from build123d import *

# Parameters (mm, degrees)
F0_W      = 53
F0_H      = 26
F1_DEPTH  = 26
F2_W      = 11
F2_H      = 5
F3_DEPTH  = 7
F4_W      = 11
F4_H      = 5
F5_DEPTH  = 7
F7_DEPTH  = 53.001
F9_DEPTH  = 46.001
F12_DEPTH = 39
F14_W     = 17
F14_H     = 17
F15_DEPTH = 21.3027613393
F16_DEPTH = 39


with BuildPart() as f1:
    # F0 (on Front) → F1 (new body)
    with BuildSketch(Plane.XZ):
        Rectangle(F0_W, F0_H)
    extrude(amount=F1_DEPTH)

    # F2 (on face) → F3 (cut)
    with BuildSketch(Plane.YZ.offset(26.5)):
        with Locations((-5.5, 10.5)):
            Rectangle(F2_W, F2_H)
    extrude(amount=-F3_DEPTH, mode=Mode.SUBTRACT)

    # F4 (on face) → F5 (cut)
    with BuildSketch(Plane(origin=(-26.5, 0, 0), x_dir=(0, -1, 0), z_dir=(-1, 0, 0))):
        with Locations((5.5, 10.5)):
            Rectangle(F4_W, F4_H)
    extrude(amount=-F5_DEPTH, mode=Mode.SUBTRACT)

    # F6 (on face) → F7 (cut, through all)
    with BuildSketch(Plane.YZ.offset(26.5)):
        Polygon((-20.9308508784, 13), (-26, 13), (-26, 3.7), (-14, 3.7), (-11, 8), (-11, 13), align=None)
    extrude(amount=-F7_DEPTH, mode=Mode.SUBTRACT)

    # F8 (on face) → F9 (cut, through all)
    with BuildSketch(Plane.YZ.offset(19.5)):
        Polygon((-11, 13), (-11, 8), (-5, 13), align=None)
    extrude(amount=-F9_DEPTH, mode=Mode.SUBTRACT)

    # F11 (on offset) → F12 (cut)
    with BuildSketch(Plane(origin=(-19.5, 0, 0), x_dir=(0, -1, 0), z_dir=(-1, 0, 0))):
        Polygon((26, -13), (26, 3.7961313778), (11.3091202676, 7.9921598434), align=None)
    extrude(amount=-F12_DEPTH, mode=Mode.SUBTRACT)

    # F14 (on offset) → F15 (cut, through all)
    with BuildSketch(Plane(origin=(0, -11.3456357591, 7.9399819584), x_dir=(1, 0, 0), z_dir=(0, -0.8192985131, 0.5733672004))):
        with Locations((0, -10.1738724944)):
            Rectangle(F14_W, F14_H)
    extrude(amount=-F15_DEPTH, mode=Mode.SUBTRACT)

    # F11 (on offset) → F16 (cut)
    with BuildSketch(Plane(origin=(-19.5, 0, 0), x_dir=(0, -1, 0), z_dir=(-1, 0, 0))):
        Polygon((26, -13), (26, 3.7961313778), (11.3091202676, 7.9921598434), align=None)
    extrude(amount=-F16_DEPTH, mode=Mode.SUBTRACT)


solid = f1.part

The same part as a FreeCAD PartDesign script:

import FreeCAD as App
import Part
import Sketcher


def add_polygon(sketch, points):
    """Adds a closed chain of lines whose ends are joined by coincident constraints."""
    first, n = sketch.GeometryCount, len(points)
    for a, b in zip(points, points[1:] + points[:1]):
        sketch.addGeometry(Part.LineSegment(App.Vector(*a, 0), App.Vector(*b, 0)), False)
    for i in range(n):
        sketch.addConstraint(Sketcher.Constraint("Coincident", first + i, 2, first + (i + 1) % n, 1))

doc = App.newDocument("Part")
body = doc.addObject("PartDesign::Body", "Body")

# Sketch on XZ plane
sketch1 = body.newObject("Sketcher::SketchObject", "Sketch")
sketch1.AttachmentSupport = (doc.getObject("XZ_Plane"), [""])
sketch1.MapMode = "FlatFace"
add_polygon(sketch1, [(-26, 13), (-26, -13), (26, -13), (26, 13)])  # lines 0-3
sketch1.addConstraint(Sketcher.Constraint("Vertical", 0))
sketch1.addConstraint(Sketcher.Constraint("Horizontal", 1))
sketch1.addConstraint(Sketcher.Constraint("Vertical", 2))
sketch1.addConstraint(Sketcher.Constraint("Horizontal", 3))
sketch1.addConstraint(Sketcher.Constraint("Symmetric", 0, 2, 2, 2, -1, 1))
sketch1.addConstraint(Sketcher.Constraint("DistanceX", 1, 1, 1, 2, 53.0))
sketch1.addConstraint(Sketcher.Constraint("DistanceY", 0, 2, 0, 1, 26.0))
pad1 = body.newObject("PartDesign::Pad", "Pad")
pad1.Profile = sketch1
pad1.Length = 26

# Sketch on YZ plane
sketch2 = body.newObject("Sketcher::SketchObject", "Sketch001")
sketch2.AttachmentSupport = (doc.getObject("YZ_Plane"), [""])
sketch2.MapMode = "FlatFace"
sketch2.AttachmentOffset = App.Placement(App.Vector(0, 0, 26.5), App.Rotation())
add_polygon(sketch2, [(-11, 13), (-11, 8), (0, 8), (0, 13)])  # lines 0-3
sketch2.addConstraint(Sketcher.Constraint("Vertical", 0))
sketch2.addConstraint(Sketcher.Constraint("Horizontal", 1))
sketch2.addConstraint(Sketcher.Constraint("Vertical", 2))
sketch2.addConstraint(Sketcher.Constraint("Horizontal", 3))
sketch2.addConstraint(Sketcher.Constraint("PointOnObject", 1, 2, -2))
sketch2.addConstraint(Sketcher.Constraint("DistanceX", 1, 1, 1, 2, 11.0))
sketch2.addConstraint(Sketcher.Constraint("DistanceY", 0, 2, 0, 1, 5.0))
sketch2.addConstraint(Sketcher.Constraint("DistanceY", -1, 1, 0, 2, 8.0))
pocket1 = body.newObject("PartDesign::Pocket", "Pocket")
pocket1.Profile = sketch2
pocket1.Length = 7

# Sketch on YZ plane
sketch3 = body.newObject("Sketcher::SketchObject", "Sketch002")
sketch3.AttachmentSupport = (doc.getObject("YZ_Plane"), [""])
sketch3.MapMode = "FlatFace"
sketch3.AttachmentOffset = App.Placement(App.Vector(0, 0, -26.5), App.Rotation())
add_polygon(sketch3, [(0, 13), (0, 8), (-11, 8), (-11, 13)])  # lines 0-3
sketch3.addConstraint(Sketcher.Constraint("Vertical", 0))
sketch3.addConstraint(Sketcher.Constraint("Horizontal", 1))
sketch3.addConstraint(Sketcher.Constraint("Vertical", 2))
sketch3.addConstraint(Sketcher.Constraint("Horizontal", 3))
sketch3.addConstraint(Sketcher.Constraint("PointOnObject", 0, 2, -2))
sketch3.addConstraint(Sketcher.Constraint("DistanceX", 1, 2, 1, 1, 11.0))
sketch3.addConstraint(Sketcher.Constraint("DistanceY", 0, 2, 0, 1, 5.0))
sketch3.addConstraint(Sketcher.Constraint("DistanceY", -1, 1, 0, 2, 8.0))
pocket2 = body.newObject("PartDesign::Pocket", "Pocket001")
pocket2.Profile = sketch3
pocket2.Length = 7
pocket2.Reversed = True

# Sketch on YZ plane
sketch4 = body.newObject("Sketcher::SketchObject", "Sketch003")
sketch4.AttachmentSupport = (doc.getObject("YZ_Plane"), [""])
sketch4.MapMode = "FlatFace"
sketch4.AttachmentOffset = App.Placement(App.Vector(0, 0, 26.5), App.Rotation())
add_polygon(sketch4, [(-26, 13), (-26, 4), (-14, 4), (-11, 8), (-11, 13)])  # lines 0-4
sketch4.addConstraint(Sketcher.Constraint("Vertical", 0))
sketch4.addConstraint(Sketcher.Constraint("Horizontal", 1))
sketch4.addConstraint(Sketcher.Constraint("Vertical", 3))
sketch4.addConstraint(Sketcher.Constraint("Horizontal", 4))
sketch4.addConstraint(Sketcher.Constraint("DistanceX", 1, 1, 1, 2, 12.0))
sketch4.addConstraint(Sketcher.Constraint("DistanceX", 4, 2, 4, 1, 15.0))
sketch4.addConstraint(Sketcher.Constraint("DistanceY", 3, 1, 3, 2, 5.0))
sketch4.addConstraint(Sketcher.Constraint("DistanceY", 0, 2, 0, 1, 9.3))
sketch4.addConstraint(Sketcher.Constraint("DistanceX", 0, 2, -1, 1, 26.0))
sketch4.addConstraint(Sketcher.Constraint("DistanceY", -1, 1, 2, 2, 8.0))
pocket3 = body.newObject("PartDesign::Pocket", "Pocket002")
pocket3.Profile = sketch4
pocket3.Type = "ThroughAll"

# Sketch on YZ plane
sketch5 = body.newObject("Sketcher::SketchObject", "Sketch004")
sketch5.AttachmentSupport = (doc.getObject("YZ_Plane"), [""])
sketch5.MapMode = "FlatFace"
sketch5.AttachmentOffset = App.Placement(App.Vector(0, 0, 19.5), App.Rotation())
add_polygon(sketch5, [(-11, 13), (-11, 8), (-5, 13)])  # lines 0-2
sketch5.addConstraint(Sketcher.Constraint("Vertical", 0))
sketch5.addConstraint(Sketcher.Constraint("Horizontal", 2))
sketch5.addConstraint(Sketcher.Constraint("DistanceX", 2, 2, 2, 1, 6.0))
sketch5.addConstraint(Sketcher.Constraint("DistanceY", 0, 2, 0, 1, 5.0))
sketch5.addConstraint(Sketcher.Constraint("DistanceX", 0, 2, -1, 1, 11.0))
sketch5.addConstraint(Sketcher.Constraint("DistanceY", -1, 1, 0, 2, 8.0))
pocket4 = body.newObject("PartDesign::Pocket", "Pocket003")
pocket4.Profile = sketch5
pocket4.Type = "ThroughAll"

# Sketch on YZ plane
sketch6 = body.newObject("Sketcher::SketchObject", "Sketch005")
sketch6.AttachmentSupport = (doc.getObject("YZ_Plane"), [""])
sketch6.MapMode = "FlatFace"
sketch6.AttachmentOffset = App.Placement(App.Vector(0, 0, -19.5), App.Rotation())
add_polygon(sketch6, [(-26, -13), (-26, 4), (-11, 8)])  # lines 0-2
sketch6.addConstraint(Sketcher.Constraint("Vertical", 0))
sketch6.addConstraint(Sketcher.Constraint("DistanceX", 0, 2, -1, 1, 26.0))
sketch6.addConstraint(Sketcher.Constraint("DistanceY", 2, 2, -1, 1, 13.0))
sketch6.addConstraint(Sketcher.Constraint("DistanceY", 0, 1, 0, 2, 16.796131))
sketch6.addConstraint(Sketcher.Constraint("Distance", 1, 15.27837))
sketch6.addConstraint(Sketcher.Constraint("DistanceX", 1, 2, -1, 1, 11.30912))
pocket5 = body.newObject("PartDesign::Pocket", "Pocket004")
pocket5.Profile = sketch6
pocket5.Length = 39
pocket5.Reversed = True

# Sketch on an angled plane
sketch7 = body.newObject("Sketcher::SketchObject", "Sketch006")
sketch7.Placement = App.Placement(App.Vector(0, -11.345636, 7.939982), App.Rotation(App.Vector(1, 0, 0), App.Vector(0, 0.5733672, 0.819298513), App.Vector(0, -0.819298513, 0.5733672), "ZXY"))
add_polygon(sketch7, [(-8, -2), (-8, -19), (8, -19), (8, -2)])  # lines 0-3
sketch7.addConstraint(Sketcher.Constraint("Vertical", 0))
sketch7.addConstraint(Sketcher.Constraint("Horizontal", 1))
sketch7.addConstraint(Sketcher.Constraint("Vertical", 2))
sketch7.addConstraint(Sketcher.Constraint("Horizontal", 3))
sketch7.addConstraint(Sketcher.Constraint("Equal", 3, 0))
sketch7.addConstraint(Sketcher.Constraint("DistanceX", 1, 1, 1, 2, 17.0))
sketch7.addConstraint(Sketcher.Constraint("DistanceX", 0, 2, -1, 1, 8.5))
sketch7.addConstraint(Sketcher.Constraint("DistanceY", 0, 2, -1, 1, 18.673872))
pocket6 = body.newObject("PartDesign::Pocket", "Pocket005")
pocket6.Profile = sketch7
pocket6.Type = "ThroughAll"

# Sketch on YZ plane
sketch8 = body.newObject("Sketcher::SketchObject", "Sketch007")
sketch8.AttachmentSupport = (doc.getObject("YZ_Plane"), [""])
sketch8.MapMode = "FlatFace"
sketch8.AttachmentOffset = App.Placement(App.Vector(0, 0, -19.5), App.Rotation())
add_polygon(sketch8, [(-26, -13), (-26, 4), (-11, 8)])  # lines 0-2
sketch8.addConstraint(Sketcher.Constraint("Vertical", 0))
sketch8.addConstraint(Sketcher.Constraint("DistanceX", 0, 2, -1, 1, 26.0))
sketch8.addConstraint(Sketcher.Constraint("DistanceY", 2, 2, -1, 1, 13.0))
sketch8.addConstraint(Sketcher.Constraint("DistanceY", 0, 1, 0, 2, 16.796131))
sketch8.addConstraint(Sketcher.Constraint("Distance", 1, 15.27837))
sketch8.addConstraint(Sketcher.Constraint("DistanceX", 1, 2, -1, 1, 11.30912))
pocket7 = body.newObject("PartDesign::Pocket", "Pocket006")
pocket7.Profile = sketch8
pocket7.Length = 39
pocket7.Reversed = True

doc.recompute()
